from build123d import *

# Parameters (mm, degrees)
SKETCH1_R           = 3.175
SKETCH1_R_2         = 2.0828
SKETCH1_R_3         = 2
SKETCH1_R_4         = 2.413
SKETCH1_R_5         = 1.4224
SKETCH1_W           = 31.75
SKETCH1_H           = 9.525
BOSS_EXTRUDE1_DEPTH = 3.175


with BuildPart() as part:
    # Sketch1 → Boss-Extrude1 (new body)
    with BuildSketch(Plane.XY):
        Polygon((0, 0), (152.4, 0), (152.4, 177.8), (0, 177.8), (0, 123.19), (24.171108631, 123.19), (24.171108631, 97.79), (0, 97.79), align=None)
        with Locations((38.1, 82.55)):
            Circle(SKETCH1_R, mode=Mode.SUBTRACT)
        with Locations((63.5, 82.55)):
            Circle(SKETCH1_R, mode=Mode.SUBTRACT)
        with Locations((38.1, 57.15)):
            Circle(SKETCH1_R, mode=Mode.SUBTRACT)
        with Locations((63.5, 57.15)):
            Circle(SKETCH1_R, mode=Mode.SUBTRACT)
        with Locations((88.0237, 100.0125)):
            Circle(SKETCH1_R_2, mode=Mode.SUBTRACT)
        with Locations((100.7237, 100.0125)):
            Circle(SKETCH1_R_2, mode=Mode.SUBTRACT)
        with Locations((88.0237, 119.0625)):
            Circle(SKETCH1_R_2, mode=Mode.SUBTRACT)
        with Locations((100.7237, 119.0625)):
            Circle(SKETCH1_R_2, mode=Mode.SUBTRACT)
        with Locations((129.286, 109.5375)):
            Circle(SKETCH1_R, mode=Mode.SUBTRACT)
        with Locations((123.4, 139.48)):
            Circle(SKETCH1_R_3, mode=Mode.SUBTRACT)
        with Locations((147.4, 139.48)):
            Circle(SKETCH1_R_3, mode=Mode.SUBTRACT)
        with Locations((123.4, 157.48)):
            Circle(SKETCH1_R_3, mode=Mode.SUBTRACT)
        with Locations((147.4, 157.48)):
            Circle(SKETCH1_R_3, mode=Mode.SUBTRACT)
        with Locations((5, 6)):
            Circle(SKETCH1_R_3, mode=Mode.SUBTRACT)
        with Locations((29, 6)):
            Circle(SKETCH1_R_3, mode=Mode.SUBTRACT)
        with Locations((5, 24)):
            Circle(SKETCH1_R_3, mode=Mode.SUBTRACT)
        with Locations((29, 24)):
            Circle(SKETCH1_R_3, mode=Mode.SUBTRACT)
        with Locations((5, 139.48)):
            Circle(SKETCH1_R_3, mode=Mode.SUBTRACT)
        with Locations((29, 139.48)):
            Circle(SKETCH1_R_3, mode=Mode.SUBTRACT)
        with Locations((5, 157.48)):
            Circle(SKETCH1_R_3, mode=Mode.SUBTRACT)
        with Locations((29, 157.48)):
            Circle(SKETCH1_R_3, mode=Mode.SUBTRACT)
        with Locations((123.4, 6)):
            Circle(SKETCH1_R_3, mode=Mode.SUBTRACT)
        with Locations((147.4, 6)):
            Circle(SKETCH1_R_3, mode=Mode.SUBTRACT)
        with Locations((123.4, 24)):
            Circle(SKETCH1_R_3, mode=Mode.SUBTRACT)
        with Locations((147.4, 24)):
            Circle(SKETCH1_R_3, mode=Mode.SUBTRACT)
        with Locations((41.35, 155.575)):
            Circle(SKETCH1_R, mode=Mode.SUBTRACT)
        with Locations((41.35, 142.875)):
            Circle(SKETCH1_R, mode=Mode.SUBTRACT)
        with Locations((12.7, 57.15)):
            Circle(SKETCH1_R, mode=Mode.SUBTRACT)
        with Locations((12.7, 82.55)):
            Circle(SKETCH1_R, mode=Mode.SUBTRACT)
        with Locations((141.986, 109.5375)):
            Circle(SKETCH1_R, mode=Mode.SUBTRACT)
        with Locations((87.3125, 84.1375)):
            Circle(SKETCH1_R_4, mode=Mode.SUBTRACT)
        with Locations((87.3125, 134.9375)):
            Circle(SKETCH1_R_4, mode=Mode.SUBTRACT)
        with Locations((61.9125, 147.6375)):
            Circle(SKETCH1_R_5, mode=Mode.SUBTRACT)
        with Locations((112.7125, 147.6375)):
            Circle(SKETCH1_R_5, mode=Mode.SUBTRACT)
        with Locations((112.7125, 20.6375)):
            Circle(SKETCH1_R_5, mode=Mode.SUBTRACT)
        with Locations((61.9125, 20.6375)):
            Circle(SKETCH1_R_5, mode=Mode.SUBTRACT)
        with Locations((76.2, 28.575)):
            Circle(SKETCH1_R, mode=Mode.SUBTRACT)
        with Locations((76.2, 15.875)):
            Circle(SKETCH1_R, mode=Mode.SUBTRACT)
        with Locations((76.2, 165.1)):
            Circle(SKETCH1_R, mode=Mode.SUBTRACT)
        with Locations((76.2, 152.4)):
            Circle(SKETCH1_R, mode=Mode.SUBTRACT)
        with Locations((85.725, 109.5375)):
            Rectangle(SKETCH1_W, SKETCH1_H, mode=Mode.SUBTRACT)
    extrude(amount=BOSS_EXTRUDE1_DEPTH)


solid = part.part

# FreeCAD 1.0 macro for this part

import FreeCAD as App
import Part
import Sketcher
from FreeCAD import Vector
Q = App.Units.Quantity


def add_polygon(sketch, points):
    """Adds a closed chain of lines whose ends are joined by coincident constraints."""
    first, n = sketch.GeometryCount, len(points)
    for a, b in zip(points, points[1:] + points[:1]):
        sketch.addGeometry(Part.LineSegment(App.Vector(*a, 0), App.Vector(*b, 0)), False)
    for i in range(n):
        sketch.addConstraint(Sketcher.Constraint("Coincident", first + i, 2, first + (i + 1) % n, 1))

doc = App.newDocument("Part")
body = doc.addObject("PartDesign::Body", "Body")

sketch1 = body.newObject("Sketcher::SketchObject", "Sketch")
sketch1.AttachmentSupport = (doc.getObject("XY_Plane"), [""])
sketch1.MapMode = "FlatFace"
add_polygon(sketch1, [(0, 0), (152.4, 0), (152.4, 177.8), (0, 177.8), (0, 123.2), (24.2, 123.2), (24.2, 97.8), (0, 97.8)])
sketch1.addGeometry(Part.Circle(Vector(5, 6, 0), Vector(0, 0, 1), 2), False)
sketch1.addGeometry(Part.Circle(Vector(5, 24, 0), Vector(0, 0, 1), 2), False)
sketch1.addGeometry(Part.Circle(Vector(29, 6, 0), Vector(0, 0, 1), 2), False)
sketch1.addGeometry(Part.Circle(Vector(29, 24, 0), Vector(0, 0, 1), 2), False)
sketch1.addGeometry(Part.Circle(Vector(61.9, 20.6, 0), Vector(0, 0, 1), 1.4), False)
sketch1.addGeometry(Part.Circle(Vector(12.7, 57.1, 0), Vector(0, 0, 1), 3.2), False)
sketch1.addGeometry(Part.Circle(Vector(38.1, 57.1, 0), Vector(0, 0, 1), 3.2), False)
sketch1.addGeometry(Part.Circle(Vector(12.7, 82.5, 0), Vector(0, 0, 1), 3.2), False)
sketch1.addGeometry(Part.Circle(Vector(38.1, 82.5, 0), Vector(0, 0, 1), 3.2), False)
sketch1.addGeometry(Part.Circle(Vector(63.5, 57.1, 0), Vector(0, 0, 1), 3.2), False)
sketch1.addGeometry(Part.Circle(Vector(63.5, 82.5, 0), Vector(0, 0, 1), 3.2), False)
sketch1.addGeometry(Part.Circle(Vector(76.2, 15.9, 0), Vector(0, 0, 1), 3.2), False)
sketch1.addGeometry(Part.Circle(Vector(112.7, 20.6, 0), Vector(0, 0, 1), 1.4), False)
sketch1.addGeometry(Part.Circle(Vector(76.2, 28.6, 0), Vector(0, 0, 1), 3.2), False)
sketch1.addGeometry(Part.Circle(Vector(123.4, 6, 0), Vector(0, 0, 1), 2), False)
sketch1.addGeometry(Part.Circle(Vector(123.4, 24, 0), Vector(0, 0, 1), 2), False)
sketch1.addGeometry(Part.Circle(Vector(147.4, 6, 0), Vector(0, 0, 1), 2), False)
sketch1.addGeometry(Part.Circle(Vector(147.4, 24, 0), Vector(0, 0, 1), 2), False)
sketch1.addGeometry(Part.Circle(Vector(87.3, 84.1, 0), Vector(0, 0, 1), 2.4), False)
sketch1.addGeometry(Part.Circle(Vector(5, 139.5, 0), Vector(0, 0, 1), 2), False)
sketch1.addGeometry(Part.Circle(Vector(29, 139.5, 0), Vector(0, 0, 1), 2), False)
sketch1.addGeometry(Part.Circle(Vector(5, 157.5, 0), Vector(0, 0, 1), 2), False)
sketch1.addGeometry(Part.Circle(Vector(29, 157.5, 0), Vector(0, 0, 1), 2), False)
sketch1.addGeometry(Part.Circle(Vector(41.4, 142.9, 0), Vector(0, 0, 1), 3.2), False)
sketch1.addGeometry(Part.Circle(Vector(61.9, 147.6, 0), Vector(0, 0, 1), 1.4), False)
sketch1.addGeometry(Part.Circle(Vector(41.4, 155.6, 0), Vector(0, 0, 1), 3.2), False)
sketch1.addGeometry(Part.Circle(Vector(88, 100, 0), Vector(0, 0, 1), 2.1), False)
sketch1.addGeometry(Part.Circle(Vector(100.7, 100, 0), Vector(0, 0, 1), 2.1), False)
add_polygon(sketch1, [(101.6, 104.8), (69.8, 104.8), (69.8, 114.3), (101.6, 114.3)])
sketch1.addGeometry(Part.Circle(Vector(88, 119.1, 0), Vector(0, 0, 1), 2.1), False)
sketch1.addGeometry(Part.Circle(Vector(100.7, 119.1, 0), Vector(0, 0, 1), 2.1), False)
sketch1.addGeometry(Part.Circle(Vector(129.3, 109.5, 0), Vector(0, 0, 1), 3.2), False)
sketch1.addGeometry(Part.Circle(Vector(142, 109.5, 0), Vector(0, 0, 1), 3.2), False)
sketch1.addGeometry(Part.Circle(Vector(87.3, 134.9, 0), Vector(0, 0, 1), 2.4), False)
sketch1.addGeometry(Part.Circle(Vector(112.7, 147.6, 0), Vector(0, 0, 1), 1.4), False)
sketch1.addGeometry(Part.Circle(Vector(76.2, 152.4, 0), Vector(0, 0, 1), 3.2), False)
sketch1.addGeometry(Part.Circle(Vector(76.2, 165.1, 0), Vector(0, 0, 1), 3.2), False)
sketch1.addGeometry(Part.Circle(Vector(123.4, 139.5, 0), Vector(0, 0, 1), 2), False)
sketch1.addGeometry(Part.Circle(Vector(147.4, 139.5, 0), Vector(0, 0, 1), 2), False)
sketch1.addGeometry(Part.Circle(Vector(123.4, 157.5, 0), Vector(0, 0, 1), 2), False)
sketch1.addGeometry(Part.Circle(Vector(147.4, 157.5, 0), Vector(0, 0, 1), 2), False)
sketch1.addConstraint([
    Sketcher.Constraint("Horizontal", 0),
    Sketcher.Constraint("Vertical", 1),
    Sketcher.Constraint("Horizontal", 2),
    Sketcher.Constraint("Vertical", 3),
    Sketcher.Constraint("Horizontal", 4),
    Sketcher.Constraint("Vertical", 5),
    Sketcher.Constraint("Horizontal", 6),
    Sketcher.Constraint("Vertical", 7),
    Sketcher.Constraint("Horizontal", 36),
    Sketcher.Constraint("Vertical", 37),
    Sketcher.Constraint("Horizontal", 38),
    Sketcher.Constraint("Vertical", 39),
    Sketcher.Constraint("Coincident", 7, 2, -1, 1),
    Sketcher.Constraint("Equal", 8, 9),
    Sketcher.Constraint("Equal", 9, 10),
    Sketcher.Constraint("Equal", 10, 11),
    Sketcher.Constraint("Equal", 13, 14),
    Sketcher.Constraint("Equal", 14, 15),
    Sketcher.Constraint("Equal", 15, 16),
    Sketcher.Constraint("Equal", 16, 17),
    Sketcher.Constraint("Equal", 17, 18),
    Sketcher.Constraint("Equal", 18, 19),
    Sketcher.Constraint("Equal", 12, 20),
    Sketcher.Constraint("Equal", 19, 21),
    Sketcher.Constraint("Equal", 11, 22),
    Sketcher.Constraint("Equal", 22, 23),
    Sketcher.Constraint("Equal", 23, 24),
    Sketcher.Constraint("Equal", 24, 25),
    Sketcher.Constraint("Equal", 25, 27),
    Sketcher.Constraint("Equal", 27, 28),
    Sketcher.Constraint("Equal", 28, 29),
    Sketcher.Constraint("Equal", 29, 30),
    Sketcher.Constraint("Equal", 21, 31),
    Sketcher.Constraint("Equal", 20, 32),
    Sketcher.Constraint("Equal", 31, 33),
    Sketcher.Constraint("Equal", 34, 35),
    Sketcher.Constraint("Equal", 35, 40),
    Sketcher.Constraint("Equal", 40, 41),
    Sketcher.Constraint("Equal", 33, 42),
    Sketcher.Constraint("Equal", 42, 43),
    Sketcher.Constraint("Equal", 26, 44),
    Sketcher.Constraint("Equal", 32, 45),
    Sketcher.Constraint("Equal", 43, 46),
    Sketcher.Constraint("Equal", 46, 47),
    Sketcher.Constraint("Equal", 30, 48),
    Sketcher.Constraint("Equal", 48, 49),
    Sketcher.Constraint("Equal", 49, 50),
    Sketcher.Constraint("Equal", 50, 51),
    Sketcher.Constraint("PointOnObject", 2, 2, -2),
    Sketcher.Constraint("Horizontal", 8, 3, 10, 3),
    Sketcher.Constraint("Horizontal", 9, 3, 11, 3),
    Sketcher.Constraint("Horizontal", 13, 3, 14, 3),
    Sketcher.Constraint("Horizontal", 15, 3, 16, 3),
    Sketcher.Constraint("Horizontal", 14, 3, 17, 3),
    Sketcher.Constraint("Horizontal", 16, 3, 18, 3),
    Sketcher.Constraint("Horizontal", 12, 3, 20, 3),
    Sketcher.Constraint("Horizontal", 10, 3, 22, 3),
    Sketcher.Constraint("Horizontal", 11, 3, 23, 3),
    Sketcher.Constraint("Horizontal", 22, 3, 24, 3),
    Sketcher.Constraint("Horizontal", 23, 3, 25, 3),
    Sketcher.Constraint("Horizontal", 27, 3, 28, 3),
    Sketcher.Constraint("Horizontal", 29, 3, 30, 3),
    Sketcher.Constraint("Horizontal", 34, 3, 35, 3),
    Sketcher.Constraint("Horizontal", 40, 3, 41, 3),
    Sketcher.Constraint("Horizontal", 42, 3, 43, 3),
    Sketcher.Constraint("Horizontal", 32, 3, 45, 3),
    Sketcher.Constraint("Horizontal", 28, 3, 48, 3),
    Sketcher.Constraint("Horizontal", 48, 3, 49, 3),
    Sketcher.Constraint("Horizontal", 30, 3, 50, 3),
    Sketcher.Constraint("Horizontal", 50, 3, 51, 3),
    Sketcher.Constraint("Vertical", 8, 3, 9, 3),
    Sketcher.Constraint("Vertical", 10, 3, 11, 3),
    Sketcher.Constraint("Vertical", 13, 3, 15, 3),
    Sketcher.Constraint("Vertical", 14, 3, 16, 3),
    Sketcher.Constraint("Vertical", 17, 3, 18, 3),
    Sketcher.Constraint("Vertical", 19, 3, 21, 3),
    Sketcher.Constraint("Vertical", 22, 3, 23, 3),
    Sketcher.Constraint("Vertical", 24, 3, 25, 3),
    Sketcher.Constraint("Vertical", 9, 3, 27, 3),
    Sketcher.Constraint("Vertical", 11, 3, 28, 3),
    Sketcher.Constraint("Vertical", 27, 3, 29, 3),
    Sketcher.Constraint("Vertical", 28, 3, 30, 3),
    Sketcher.Constraint("Vertical", 12, 3, 32, 3),
    Sketcher.Constraint("Vertical", 31, 3, 33, 3),
    Sketcher.Constraint("Vertical", 34, 3, 40, 3),
    Sketcher.Constraint("Vertical", 35, 3, 41, 3),
    Sketcher.Constraint("Vertical", 26, 3, 44, 3),
    Sketcher.Constraint("Vertical", 20, 3, 45, 3),
    Sketcher.Constraint("Vertical", 21, 3, 46, 3),
    Sketcher.Constraint("Vertical", 46, 3, 47, 3),
    Sketcher.Constraint("Vertical", 23, 3, 48, 3),
    Sketcher.Constraint("Vertical", 25, 3, 49, 3),
    Sketcher.Constraint("Vertical", 48, 3, 50, 3),
    Sketcher.Constraint("Vertical", 49, 3, 51, 3),
    Sketcher.Constraint("Diameter", 13, Q("0.25 in")),
    Sketcher.Constraint("Diameter", 26, Q("0.19 in")),
    Sketcher.Constraint("DistanceX", 0, 1, 0, 2, Q("6 in")),
    Sketcher.Constraint("DistanceY", 1, 1, 1, 2, Q("7 in")),
    Sketcher.Constraint("DistanceY", 5, 2, 5, 1, Q("1 in")),
    Sketcher.Constraint("Diameter", 12, Q("0.112 in")),
    Sketcher.Constraint("Diameter", 34, Q("0.164 in")),
    Sketcher.Constraint("DistanceX", -1, 1, 19, 3, Q("3 in")),
    Sketcher.Constraint("DistanceY", -1, 1, 46, 3, Q("6 in")),
    Sketcher.Constraint("DistanceX", -1, 1, 38, 2, Q("4 in")),
    Sketcher.Constraint("DistanceX", 13, 3, 14, 3, Q("1 in")),
    Sketcher.Constraint("DistanceY", 13, 3, 15, 3, Q("1 in")),
    Sketcher.Constraint("DistanceX", 14, 3, 17, 3, Q("1 in")),
    Sketcher.Constraint("DistanceX", 12, 3, 20, 3, Q("2 in")),
    Sketcher.Constraint("DistanceY", 26, 3, 42, 3, Q("1 in")),
    Sketcher.Constraint("DistanceX", 32, 3, 44, 3, Q("1 in")),
    Sketcher.Constraint("DistanceX", 36, 2, 36, 1, Q("1.25 in")),
    Sketcher.Constraint("DistanceY", 3, 2, 3, 1, Q("2.15 in")),
    Sketcher.Constraint("DistanceX", -1, 1, 13, 3, Q("0.5 in")),
    Sketcher.Constraint("DistanceY", -1, 1, 29, 3, Q("6.2 in")),
    Sketcher.Constraint("DistanceY", -1, 1, 47, 3, Q("6.5 in")),
    Sketcher.Constraint("DistanceY", -1, 1, 37, 2, Q("4.5 in")),
    Sketcher.Constraint("DistanceY", 19, 3, 21, 3, Q("0.5 in")),
    Sketcher.Constraint("DistanceY", 31, 3, 33, 3, Q("0.5 in")),
    Sketcher.Constraint("DistanceX", 34, 3, 35, 3, Q("0.5 in")),
    Sketcher.Constraint("DistanceX", 42, 3, 43, 3, Q("0.5 in")),
    Sketcher.Constraint("DistanceY", 44, 3, 32, 3, Q("0.5 in")),
    Sketcher.Constraint("DistanceY", 42, 3, 45, 3, Q("1.5 in")),
    Sketcher.Constraint("DistanceY", 15, 3, 3, 2, Q("1.6 in")),
    Sketcher.Constraint("Diameter", 8, Q("4 mm")),
    Sketcher.Constraint("DistanceY", 37, 1, 37, 2, Q("0.375 in")),
    Sketcher.Constraint("DistanceX", -1, 1, 42, 3, Q("5.09 in")),
    Sketcher.Constraint("DistanceY", 34, 3, 40, 3, Q("0.75 in")),
    Sketcher.Constraint("DistanceX", -1, 1, 12, 3, Q("2.4375 in")),
    Sketcher.Constraint("DistanceY", -1, 1, 12, 3, Q("0.8125 in")),
    Sketcher.Constraint("DistanceY", -1, 1, 19, 3, Q("0.625 in")),
    Sketcher.Constraint("DistanceY", -1, 1, 26, 3, Q("3.3125 in")),
    Sketcher.Constraint("DistanceY", -1, 1, 31, 3, Q("5.625 in")),
    Sketcher.Constraint("DistanceY", -1, 1, 34, 3, Q("3.9375 in")),
    Sketcher.Constraint("DistanceX", 26, 3, 34, 3, Q("0.028 in")),
    Sketcher.Constraint("DistanceX", 4, 1, 4, 2, Q("24.171109 mm")),
    Sketcher.Constraint("DistanceX", -1, 1, 8, 3, Q("5 mm")),
    Sketcher.Constraint("DistanceY", -1, 1, 8, 3, Q("6 mm")),
    Sketcher.Constraint("DistanceY", -1, 1, 9, 3, Q("24 mm")),
    Sketcher.Constraint("DistanceX", -1, 1, 10, 3, Q("29 mm")),
    Sketcher.Constraint("DistanceX", -1, 1, 22, 3, Q("123.4 mm")),
    Sketcher.Constraint("DistanceX", -1, 1, 24, 3, Q("147.4 mm")),
    Sketcher.Constraint("DistanceY", -1, 1, 27, 3, Q("139.48 mm")),
    Sketcher.Constraint("DistanceX", -1, 1, 31, 3, Q("41.35 mm")),
])
pad1 = body.newObject("PartDesign::Pad", "Pad")
pad1.Profile = sketch1
pad1.Length = Q("0.125 in")

doc.recompute()
